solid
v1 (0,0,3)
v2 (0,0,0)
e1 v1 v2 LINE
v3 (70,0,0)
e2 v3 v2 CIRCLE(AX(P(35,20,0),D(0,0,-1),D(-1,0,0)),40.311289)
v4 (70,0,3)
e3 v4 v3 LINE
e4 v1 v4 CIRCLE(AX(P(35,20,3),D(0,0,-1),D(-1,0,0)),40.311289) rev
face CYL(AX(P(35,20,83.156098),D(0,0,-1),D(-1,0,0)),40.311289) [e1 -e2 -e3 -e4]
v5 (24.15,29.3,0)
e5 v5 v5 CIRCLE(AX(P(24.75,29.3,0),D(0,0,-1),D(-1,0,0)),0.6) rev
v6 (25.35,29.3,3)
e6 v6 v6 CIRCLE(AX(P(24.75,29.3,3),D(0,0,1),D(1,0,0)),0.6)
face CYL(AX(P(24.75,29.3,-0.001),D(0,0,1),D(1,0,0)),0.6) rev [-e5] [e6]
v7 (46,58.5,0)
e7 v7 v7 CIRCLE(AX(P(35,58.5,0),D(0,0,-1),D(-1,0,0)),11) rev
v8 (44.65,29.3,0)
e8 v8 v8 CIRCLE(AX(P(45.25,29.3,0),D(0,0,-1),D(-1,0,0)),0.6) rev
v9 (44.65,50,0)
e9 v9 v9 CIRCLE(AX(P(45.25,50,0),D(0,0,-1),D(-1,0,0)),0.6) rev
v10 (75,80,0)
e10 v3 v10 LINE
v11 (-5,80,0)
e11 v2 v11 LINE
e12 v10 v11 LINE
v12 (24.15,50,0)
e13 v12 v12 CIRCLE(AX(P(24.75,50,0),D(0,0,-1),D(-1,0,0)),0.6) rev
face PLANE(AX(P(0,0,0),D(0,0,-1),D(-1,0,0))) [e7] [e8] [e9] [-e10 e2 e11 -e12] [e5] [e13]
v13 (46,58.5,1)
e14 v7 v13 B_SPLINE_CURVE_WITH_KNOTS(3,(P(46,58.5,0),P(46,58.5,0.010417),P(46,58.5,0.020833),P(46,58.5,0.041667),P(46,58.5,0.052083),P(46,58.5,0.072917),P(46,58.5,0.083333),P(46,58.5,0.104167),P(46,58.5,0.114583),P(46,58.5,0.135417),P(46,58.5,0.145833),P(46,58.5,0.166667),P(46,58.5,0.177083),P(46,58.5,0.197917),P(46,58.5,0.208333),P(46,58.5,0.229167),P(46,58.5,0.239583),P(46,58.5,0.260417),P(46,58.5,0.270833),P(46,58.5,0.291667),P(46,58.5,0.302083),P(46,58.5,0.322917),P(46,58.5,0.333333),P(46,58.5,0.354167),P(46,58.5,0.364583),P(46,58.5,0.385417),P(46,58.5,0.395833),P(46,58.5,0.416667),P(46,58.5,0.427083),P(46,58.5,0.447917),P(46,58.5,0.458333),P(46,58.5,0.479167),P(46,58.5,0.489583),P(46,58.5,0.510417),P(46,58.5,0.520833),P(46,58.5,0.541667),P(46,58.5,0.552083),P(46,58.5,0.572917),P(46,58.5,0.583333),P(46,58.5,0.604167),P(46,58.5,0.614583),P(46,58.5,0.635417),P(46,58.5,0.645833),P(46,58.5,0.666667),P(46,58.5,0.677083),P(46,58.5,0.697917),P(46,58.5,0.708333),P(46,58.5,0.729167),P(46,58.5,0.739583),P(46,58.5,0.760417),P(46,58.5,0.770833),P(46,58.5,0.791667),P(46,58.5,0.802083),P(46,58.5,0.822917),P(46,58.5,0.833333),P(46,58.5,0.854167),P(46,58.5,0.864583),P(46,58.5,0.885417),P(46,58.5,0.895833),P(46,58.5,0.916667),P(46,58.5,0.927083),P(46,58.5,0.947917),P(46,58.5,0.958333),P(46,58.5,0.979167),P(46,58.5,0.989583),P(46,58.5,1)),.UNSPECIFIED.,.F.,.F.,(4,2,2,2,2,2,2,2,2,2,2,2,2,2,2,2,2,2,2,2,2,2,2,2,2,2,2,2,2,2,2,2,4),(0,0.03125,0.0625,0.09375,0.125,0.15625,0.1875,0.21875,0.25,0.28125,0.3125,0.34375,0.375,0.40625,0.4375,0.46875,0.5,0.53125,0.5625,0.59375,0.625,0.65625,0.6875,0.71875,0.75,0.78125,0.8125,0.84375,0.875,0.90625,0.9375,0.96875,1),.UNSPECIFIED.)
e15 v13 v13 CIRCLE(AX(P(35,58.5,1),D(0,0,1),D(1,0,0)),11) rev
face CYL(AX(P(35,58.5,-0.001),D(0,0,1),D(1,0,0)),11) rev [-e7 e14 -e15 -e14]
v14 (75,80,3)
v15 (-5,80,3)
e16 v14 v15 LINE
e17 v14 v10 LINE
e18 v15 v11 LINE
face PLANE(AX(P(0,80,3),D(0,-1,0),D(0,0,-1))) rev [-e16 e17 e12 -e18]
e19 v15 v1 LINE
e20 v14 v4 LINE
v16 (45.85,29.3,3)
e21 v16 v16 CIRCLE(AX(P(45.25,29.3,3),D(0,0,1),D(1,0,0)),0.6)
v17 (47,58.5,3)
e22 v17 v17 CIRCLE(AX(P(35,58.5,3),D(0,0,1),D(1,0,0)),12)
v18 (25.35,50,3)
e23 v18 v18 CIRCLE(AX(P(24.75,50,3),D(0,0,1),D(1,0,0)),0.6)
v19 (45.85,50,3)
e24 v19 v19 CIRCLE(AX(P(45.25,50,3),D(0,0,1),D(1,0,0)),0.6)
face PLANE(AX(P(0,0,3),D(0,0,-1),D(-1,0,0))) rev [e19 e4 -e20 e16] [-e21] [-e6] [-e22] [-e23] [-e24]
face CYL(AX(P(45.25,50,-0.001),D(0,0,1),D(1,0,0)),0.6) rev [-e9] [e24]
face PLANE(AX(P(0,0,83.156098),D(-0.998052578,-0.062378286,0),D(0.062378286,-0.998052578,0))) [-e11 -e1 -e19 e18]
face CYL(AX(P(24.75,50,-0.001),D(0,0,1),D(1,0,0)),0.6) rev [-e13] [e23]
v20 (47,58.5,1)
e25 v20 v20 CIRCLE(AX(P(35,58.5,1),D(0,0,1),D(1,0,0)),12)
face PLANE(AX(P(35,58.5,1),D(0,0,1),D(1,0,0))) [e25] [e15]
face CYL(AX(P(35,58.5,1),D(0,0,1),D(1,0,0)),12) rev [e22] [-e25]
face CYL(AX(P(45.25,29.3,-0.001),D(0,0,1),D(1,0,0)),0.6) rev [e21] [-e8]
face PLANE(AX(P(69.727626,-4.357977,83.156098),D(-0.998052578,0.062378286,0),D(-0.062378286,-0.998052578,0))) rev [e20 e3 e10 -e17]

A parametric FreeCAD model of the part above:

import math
import FreeCAD as App
import Part
import Sketcher
Q = App.Units.Quantity

doc = App.newDocument("Part")
params = doc.addObject("Spreadsheet::Sheet", "Params")
for row, (alias, value) in enumerate([
    ("sketch1_width", "70 mm"),
    ("sketch1_height", "80 mm"),
    ("pad1_length", "3 mm"),
    ("sketch2_diameter", "1.2 mm"),
    ("sketch3_diameter", "1.2 mm"),
    ("sketch4_diameter", "1.2 mm"),
    ("sketch5_diameter", "1.2 mm"),
    ("sketch6_diameter", "22 mm"),
    ("sketch7_diameter", "24 mm"),
    ("pocket6_length", "2 mm"),
    ("sketch8_width", "5 mm"),
    ("sketch8_width2", "70 mm"),
    ("sketch8_height", "80 mm"),
    ("pad2_length", "3 mm"),
], start=1):
    params.set(f"A{row}", alias)
    params.set(f"B{row}", "=" + value)
    params.setAlias(f"B{row}", alias)

body = doc.addObject("PartDesign::Body", "Body")

sketch1 = body.newObject("Sketcher::SketchObject", "Sketch")
sketch1.AttachmentSupport = (doc.getObject("XY_Plane"), [""])
sketch1.MapMode = "FlatFace"
sketch1.addGeometry(Part.LineSegment(App.Vector(0, 80, 0), App.Vector(0, 0, 0)), False)
sketch1.addGeometry(Part.LineSegment(App.Vector(0, 0, 0), App.Vector(70, 0, 0)), False)
sketch1.addGeometry(Part.LineSegment(App.Vector(70, 0, 0), App.Vector(70, 80, 0)), False)
sketch1.addGeometry(Part.LineSegment(App.Vector(70, 80, 0), App.Vector(0, 80, 0)), False)
sketch1.addConstraint(Sketcher.Constraint("Coincident", 0, 2, 1, 1))
sketch1.addConstraint(Sketcher.Constraint("Coincident", 1, 2, 2, 1))
sketch1.addConstraint(Sketcher.Constraint("Coincident", 2, 2, 3, 1))
sketch1.addConstraint(Sketcher.Constraint("Coincident", 3, 2, 0, 1))
sketch1.addConstraint(Sketcher.Constraint("Vertical", 0))
sketch1.addConstraint(Sketcher.Constraint("Horizontal", 1))
sketch1.addConstraint(Sketcher.Constraint("Vertical", 2))
sketch1.addConstraint(Sketcher.Constraint("Horizontal", 3))
sketch1.addConstraint(Sketcher.Constraint("Coincident", 0, 2, -1, 1))
sketch1.addConstraint(Sketcher.Constraint("DistanceX", 1, 1, 1, 2, Q("70 mm")))
sketch1.addConstraint(Sketcher.Constraint("DistanceY", 0, 2, 0, 1, Q("80 mm")))
sketch1.setExpression("Constraints[9]", "Params.sketch1_width")
sketch1.setExpression("Constraints[10]", "Params.sketch1_height")
pad1 = body.newObject("PartDesign::Pad", "Pad")
pad1.Profile = sketch1
pad1.setExpression("Length", "Params.pad1_length")

sketch2 = body.newObject("Sketcher::SketchObject", "Sketch001")
sketch2.AttachmentSupport = (doc.getObject("XY_Plane"), [""])
sketch2.MapMode = "FlatFace"
sketch2.AttachmentOffset = App.Placement(App.Vector(0, 0, 3), App.Rotation())
sketch2.addGeometry(Part.Circle(App.Vector(24.8, 50, 0), App.Vector(0, 0, 1), 0.6), False)
sketch2.addConstraint(Sketcher.Constraint("Diameter", 0, Q("1.2 mm")))
sketch2.addConstraint(Sketcher.Constraint("DistanceY", -1, 1, 0, 3, Q("50 mm")))
sketch2.addConstraint(Sketcher.Constraint("DistanceX", -1, 1, 0, 3, Q("24.75 mm")))
sketch2.setExpression("Constraints[0]", "Params.sketch2_diameter")
pocket1 = body.newObject("PartDesign::Pocket", "Pocket")
pocket1.Profile = sketch2
pocket1.Type = "UpToFirst"

sketch3 = body.newObject("Sketcher::SketchObject", "Sketch002")
sketch3.AttachmentSupport = (doc.getObject("XY_Plane"), [""])
sketch3.MapMode = "FlatFace"
sketch3.AttachmentOffset = App.Placement(App.Vector(0, 0, 3), App.Rotation())
sketch3.addGeometry(Part.Circle(App.Vector(45.2, 50, 0), App.Vector(0, 0, 1), 0.6), False)
sketch3.addConstraint(Sketcher.Constraint("Diameter", 0, Q("1.2 mm")))
sketch3.addConstraint(Sketcher.Constraint("DistanceY", -1, 1, 0, 3, Q("50 mm")))
sketch3.addConstraint(Sketcher.Constraint("DistanceX", -1, 1, 0, 3, Q("45.25 mm")))
sketch3.setExpression("Constraints[0]", "Params.sketch3_diameter")
pocket2 = body.newObject("PartDesign::Pocket", "Pocket001")
pocket2.Profile = sketch3
pocket2.Type = "UpToFirst"

sketch4 = body.newObject("Sketcher::SketchObject", "Sketch003")
sketch4.AttachmentSupport = (doc.getObject("XY_Plane"), [""])
sketch4.MapMode = "FlatFace"
sketch4.AttachmentOffset = App.Placement(App.Vector(0, 0, 3), App.Rotation())
sketch4.addGeometry(Part.Circle(App.Vector(45.2, 29.3, 0), App.Vector(0, 0, 1), 0.6), False)
sketch4.addConstraint(Sketcher.Constraint("Diameter", 0, Q("1.2 mm")))
sketch4.addConstraint(Sketcher.Constraint("DistanceY", -1, 1, 0, 3, Q("29.3 mm")))
sketch4.addConstraint(Sketcher.Constraint("DistanceX", -1, 1, 0, 3, Q("45.25 mm")))
sketch4.setExpression("Constraints[0]", "Params.sketch4_diameter")
pocket3 = body.newObject("PartDesign::Pocket", "Pocket002")
pocket3.Profile = sketch4
pocket3.Type = "UpToFirst"

sketch5 = body.newObject("Sketcher::SketchObject", "Sketch004")
sketch5.AttachmentSupport = (doc.getObject("XY_Plane"), [""])
sketch5.MapMode = "FlatFace"
sketch5.AttachmentOffset = App.Placement(App.Vector(0, 0, 3), App.Rotation())
sketch5.addGeometry(Part.Circle(App.Vector(24.8, 29.3, 0), App.Vector(0, 0, 1), 0.6), False)
sketch5.addConstraint(Sketcher.Constraint("Diameter", 0, Q("1.2 mm")))
sketch5.addConstraint(Sketcher.Constraint("DistanceY", -1, 1, 0, 3, Q("29.3 mm")))
sketch5.addConstraint(Sketcher.Constraint("DistanceX", -1, 1, 0, 3, Q("24.75 mm")))
sketch5.setExpression("Constraints[0]", "Params.sketch5_diameter")
pocket4 = body.newObject("PartDesign::Pocket", "Pocket003")
pocket4.Profile = sketch5
pocket4.Type = "UpToFirst"

sketch6 = body.newObject("Sketcher::SketchObject", "Sketch005")
sketch6.AttachmentSupport = (doc.getObject("XY_Plane"), [""])
sketch6.MapMode = "FlatFace"
sketch6.AttachmentOffset = App.Placement(App.Vector(0, 0, 3), App.Rotation())
sketch6.addGeometry(Part.Circle(App.Vector(35, 58, 0), App.Vector(0, 0, 1), 11), False)
sketch6.addConstraint(Sketcher.Constraint("Diameter", 0, Q("22 mm")))
sketch6.addConstraint(Sketcher.Constraint("DistanceX", -1, 1, 0, 3, Q("35 mm")))
sketch6.addConstraint(Sketcher.Constraint("DistanceY", -1, 1, 0, 3, Q("58.5 mm")))
sketch6.setExpression("Constraints[0]", "Params.sketch6_diameter")
pocket5 = body.newObject("PartDesign::Pocket", "Pocket004")
pocket5.Profile = sketch6
pocket5.Type = "UpToFirst"

sketch7 = body.newObject("Sketcher::SketchObject", "Sketch006")
sketch7.AttachmentSupport = (doc.getObject("XY_Plane"), [""])
sketch7.MapMode = "FlatFace"
sketch7.AttachmentOffset = App.Placement(App.Vector(0, 0, 3), App.Rotation())
sketch7.addGeometry(Part.Circle(App.Vector(35, 58, 0), App.Vector(0, 0, 1), 12), False)
sketch7.addConstraint(Sketcher.Constraint("Diameter", 0, Q("24 mm")))
sketch7.addConstraint(Sketcher.Constraint("DistanceX", -1, 1, 0, 3, Q("35 mm")))
sketch7.addConstraint(Sketcher.Constraint("DistanceY", -1, 1, 0, 3, Q("58.5 mm")))
sketch7.setExpression("Constraints[0]", "Params.sketch7_diameter")
pocket6 = body.newObject("PartDesign::Pocket", "Pocket005")
pocket6.Profile = sketch7
pocket6.setExpression("Length", "Params.pocket6_length")

sketch8 = body.newObject("Sketcher::SketchObject", "Sketch007")
sketch8.AttachmentSupport = (doc.getObject("XY_Plane"), [""])
sketch8.MapMode = "FlatFace"
sketch8.addGeometry(Part.LineSegment(App.Vector(70, 80, 0), App.Vector(75, 80, 0)), False)
sketch8.addGeometry(Part.LineSegment(App.Vector(75, 80, 0), App.Vector(70, 0, 0)), False)
sketch8.addGeometry(Part.LineSegment(App.Vector(70, 0, 0), App.Vector(70, 80, 0)), False)
sketch8.addGeometry(Part.LineSegment(App.Vector(0, 0, 0), App.Vector(-5, 80, 0)), False)
sketch8.addGeometry(Part.LineSegment(App.Vector(-5, 80, 0), App.Vector(0, 80, 0)), False)
sketch8.addGeometry(Part.LineSegment(App.Vector(0, 80, 0), App.Vector(0, 0, 0)), False)
sketch8.addGeometry(Part.LineSegment(App.Vector(0, 0, 0), App.Vector(70, 0, 0)), False)
sketch8.addGeometry(Part.ArcOfCircle(Part.Circle(App.Vector(35, 20, 0), App.Vector(0, 0, 1), 40), math.radians(-90), math.radians(-30)), False)
sketch8.addGeometry(Part.ArcOfCircle(Part.Circle(App.Vector(35, 20, 0), App.Vector(0, 0, 1), 40), math.radians(-150), math.radians(-90)), False)
sketch8.addConstraint(Sketcher.Constraint("Coincident", 0, 2, 1, 1))
sketch8.addConstraint(Sketcher.Constraint("Coincident", 1, 2, 2, 1))
sketch8.addConstraint(Sketcher.Constraint("Coincident", 2, 2, 0, 1))
sketch8.addConstraint(Sketcher.Constraint("Coincident", 3, 2, 4, 1))
sketch8.addConstraint(Sketcher.Constraint("Coincident", 4, 2, 5, 1))
sketch8.addConstraint(Sketcher.Constraint("Coincident", 5, 2, 3, 1))
sketch8.addConstraint(Sketcher.Constraint("Coincident", 6, 2, 7, 2))
sketch8.addConstraint(Sketcher.Constraint("Tangent", 7, 1, 8, 2))
sketch8.addConstraint(Sketcher.Constraint("Coincident", 8, 1, 6, 1))
sketch8.addConstraint(Sketcher.Constraint("Horizontal", 0))
sketch8.addConstraint(Sketcher.Constraint("Vertical", 2))
sketch8.addConstraint(Sketcher.Constraint("Horizontal", 4))
sketch8.addConstraint(Sketcher.Constraint("Vertical", 5))
sketch8.addConstraint(Sketcher.Constraint("Horizontal", 6))
sketch8.addConstraint(Sketcher.Constraint("Coincident", 5, 2, -1, 1))
sketch8.addConstraint(Sketcher.Constraint("Coincident", 8, 1, -1, 1))
sketch8.addConstraint(Sketcher.Constraint("Coincident", 6, 2, 1, 2))
sketch8.addConstraint(Sketcher.Constraint("Equal", 7, 8))
sketch8.addConstraint(Sketcher.Constraint("Horizontal", 2, 2, 3, 2))
sketch8.addConstraint(Sketcher.Constraint("Vertical", 8, 3, 7, 1))
sketch8.addConstraint(Sketcher.Constraint("Equal", 0, 4))
sketch8.addConstraint(Sketcher.Constraint("DistanceX", 0, 1, 0, 2, Q("5 mm")))
sketch8.addConstraint(Sketcher.Constraint("DistanceX", 6, 1, 6, 2, Q("70 mm")))
sketch8.addConstraint(Sketcher.Constraint("DistanceY", 2, 1, 2, 2, Q("80 mm")))
sketch8.addConstraint(Sketcher.Constraint("DistanceY", -1, 1, 7, 3, Q("20 mm")))
sketch8.setExpression("Constraints[21]", "Params.sketch8_width")
sketch8.setExpression("Constraints[22]", "Params.sketch8_width2")
sketch8.setExpression("Constraints[23]", "Params.sketch8_height")
pad2 = body.newObject("PartDesign::Pad", "Pad001")
pad2.Profile = sketch8
pad2.setExpression("Length", "Params.pad2_length")

doc.recompute()
